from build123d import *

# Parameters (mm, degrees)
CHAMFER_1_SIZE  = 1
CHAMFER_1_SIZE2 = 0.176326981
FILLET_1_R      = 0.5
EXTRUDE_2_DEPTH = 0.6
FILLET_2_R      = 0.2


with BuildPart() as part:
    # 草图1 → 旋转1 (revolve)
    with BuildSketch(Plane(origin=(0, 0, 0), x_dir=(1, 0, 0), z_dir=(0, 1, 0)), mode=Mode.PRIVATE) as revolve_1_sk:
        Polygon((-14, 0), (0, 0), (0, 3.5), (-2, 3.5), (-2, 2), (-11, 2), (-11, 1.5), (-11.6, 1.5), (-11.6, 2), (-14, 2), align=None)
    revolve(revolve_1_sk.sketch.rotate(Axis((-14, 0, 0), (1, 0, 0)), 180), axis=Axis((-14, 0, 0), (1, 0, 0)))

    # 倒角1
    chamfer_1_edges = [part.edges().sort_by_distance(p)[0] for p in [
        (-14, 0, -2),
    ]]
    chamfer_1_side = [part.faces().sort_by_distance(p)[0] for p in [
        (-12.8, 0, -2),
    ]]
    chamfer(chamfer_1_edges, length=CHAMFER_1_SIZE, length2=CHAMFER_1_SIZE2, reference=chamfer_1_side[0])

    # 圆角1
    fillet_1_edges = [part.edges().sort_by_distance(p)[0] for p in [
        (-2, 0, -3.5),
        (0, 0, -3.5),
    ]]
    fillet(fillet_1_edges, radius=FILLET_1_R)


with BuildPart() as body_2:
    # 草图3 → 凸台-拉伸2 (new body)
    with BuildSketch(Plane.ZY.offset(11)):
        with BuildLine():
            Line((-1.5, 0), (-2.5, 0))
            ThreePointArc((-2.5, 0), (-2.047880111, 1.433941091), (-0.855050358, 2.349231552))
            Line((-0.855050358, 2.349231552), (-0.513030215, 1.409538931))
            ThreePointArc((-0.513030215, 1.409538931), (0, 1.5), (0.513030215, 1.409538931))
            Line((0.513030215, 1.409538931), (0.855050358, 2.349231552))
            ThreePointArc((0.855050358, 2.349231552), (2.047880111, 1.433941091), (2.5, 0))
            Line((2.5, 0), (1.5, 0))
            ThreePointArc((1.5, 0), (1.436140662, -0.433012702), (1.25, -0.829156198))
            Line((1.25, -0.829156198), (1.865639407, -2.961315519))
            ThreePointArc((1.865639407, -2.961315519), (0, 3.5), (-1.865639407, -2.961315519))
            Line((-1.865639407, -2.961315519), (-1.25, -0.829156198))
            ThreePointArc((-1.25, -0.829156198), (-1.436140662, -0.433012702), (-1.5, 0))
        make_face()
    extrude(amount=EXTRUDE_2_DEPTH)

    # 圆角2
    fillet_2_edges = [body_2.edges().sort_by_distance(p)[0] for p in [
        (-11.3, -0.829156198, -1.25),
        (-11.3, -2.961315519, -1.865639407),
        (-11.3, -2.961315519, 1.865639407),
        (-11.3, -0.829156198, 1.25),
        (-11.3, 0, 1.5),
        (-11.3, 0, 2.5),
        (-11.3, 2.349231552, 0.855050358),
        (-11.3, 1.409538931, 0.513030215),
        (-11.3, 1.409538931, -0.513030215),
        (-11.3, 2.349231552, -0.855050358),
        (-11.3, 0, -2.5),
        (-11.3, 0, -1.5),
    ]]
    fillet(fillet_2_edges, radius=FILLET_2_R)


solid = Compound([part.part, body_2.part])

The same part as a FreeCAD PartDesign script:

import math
import FreeCAD as App
import Part
import Sketcher
Q = App.Units.Quantity


def edges_at(feature, points):
    """Names of the edges that pass closest to the given points."""
    edges = feature.Shape.Edges
    near = lambda p: min(range(len(edges)), key=lambda i: edges[i].distToShape(Part.Vertex(*p))[0])
    return sorted({f"Edge{near(p) + 1}" for p in points})


def add_polygon(sketch, points):
    """Adds a closed chain of lines whose ends are joined by coincident constraints."""
    first, n = sketch.GeometryCount, len(points)
    for a, b in zip(points, points[1:] + points[:1]):
        sketch.addGeometry(Part.LineSegment(App.Vector(*a, 0), App.Vector(*b, 0)), False)
    for i in range(n):
        sketch.addConstraint(Sketcher.Constraint("Coincident", first + i, 2, first + (i + 1) % n, 1))

doc = App.newDocument("Part")
params = doc.addObject("Spreadsheet::Sheet", "Params")
for row, (alias, value) in enumerate([
    ("sketch1_width", "14 mm"),
    ("sketch1_width2", "2 mm"),
    ("sketch1_width3", "9 mm"),
    ("sketch1_width4", "0.6 mm"),
    ("sketch1_height", "3.5 mm"),
    ("revolution_angle", "360 deg"),
    ("chamfer_size", "1 mm"),
    ("chamfer_size2", "0.176327 mm"),
    ("fillet_radius", "0.5 mm"),
    ("sketch2_radius", "2.5 mm"),
    ("sketch2_radius2", "1.5 mm"),
    ("sketch2_radius3", "3.5 mm"),
    ("pad1_length", "0.6 mm"),
    ("fillet2_radius", "0.2 mm"),
], start=1):
    params.set(f"A{row}", alias)
    params.set(f"B{row}", "=" + value)
    params.setAlias(f"B{row}", alias)

body = doc.addObject("PartDesign::Body", "Body")

# Sketch on XZ plane
sketch1 = body.newObject("Sketcher::SketchObject", "Sketch")
sketch1.AttachmentSupport = (doc.getObject("XZ_Plane"), [""])
sketch1.MapMode = "FlatFace"
add_polygon(sketch1, [(-14, 0), (0, 0), (0, -3.5), (-2, -3.5), (-2, -2), (-11, -2), (-11, -1.5), (-11.6, -1.5), (-11.6, -2), (-14, -2)])  # lines 0-9
sketch1.addConstraint(Sketcher.Constraint("Horizontal", 0))
sketch1.addConstraint(Sketcher.Constraint("Vertical", 1))
sketch1.addConstraint(Sketcher.Constraint("Horizontal", 2))
sketch1.addConstraint(Sketcher.Constraint("Vertical", 3))
sketch1.addConstraint(Sketcher.Constraint("Horizontal", 4))
sketch1.addConstraint(Sketcher.Constraint("Vertical", 5))
sketch1.addConstraint(Sketcher.Constraint("Horizontal", 6))
sketch1.addConstraint(Sketcher.Constraint("Vertical", 7))
sketch1.addConstraint(Sketcher.Constraint("Horizontal", 8))
sketch1.addConstraint(Sketcher.Constraint("Vertical", 9))
sketch1.addConstraint(Sketcher.Constraint("Coincident", 0, 2, -1, 1))
sketch1.addConstraint(Sketcher.Constraint("Horizontal", 4, 2, 7, 2))
sketch1.addConstraint(Sketcher.Constraint("Equal", 2, 9))
sketch1.addConstraint(Sketcher.Constraint("DistanceX", 0, 1, 0, 2, 14.0))
sketch1.addConstraint(Sketcher.Constraint("DistanceX", 2, 2, 2, 1, 2.0))
sketch1.addConstraint(Sketcher.Constraint("DistanceX", 4, 2, 4, 1, 9.0))
sketch1.addConstraint(Sketcher.Constraint("DistanceX", 6, 2, 6, 1, 0.6))
sketch1.addConstraint(Sketcher.Constraint("DistanceY", 1, 2, 1, 1, 3.5))
sketch1.addConstraint(Sketcher.Constraint("DistanceY", 5, 1, 5, 2, 0.5))
sketch1.setExpression("Constraints[23]", "Params.sketch1_width")
sketch1.setExpression("Constraints[24]", "Params.sketch1_width2")
sketch1.setExpression("Constraints[25]", "Params.sketch1_width3")
sketch1.setExpression("Constraints[26]", "Params.sketch1_width4")
sketch1.setExpression("Constraints[27]", "Params.sketch1_height")
revolution = body.newObject("PartDesign::Revolution", "Revolution")
revolution.Profile = sketch1
revolution.ReferenceAxis = (sketch1, ["H_Axis"])
revolution.setExpression("Angle", "Params.revolution_angle")
doc.recompute()

chamfer = body.newObject("PartDesign::Chamfer", "Chamfer")
chamfer.Base = (revolution, edges_at(revolution, [(-14, 0, -2)]))
chamfer.ChamferType = "Two distances"
chamfer.setExpression("Size", "Params.chamfer_size")
chamfer.setExpression("Size2", "Params.chamfer_size2")
doc.recompute()

fillet = body.newObject("PartDesign::Fillet", "Fillet")
fillet.Base = (chamfer, edges_at(chamfer, [(-2, 0, -3.5), (0, 0, -3.5)]))
fillet.setExpression("Radius", "Params.fillet_radius")
body2 = doc.addObject("PartDesign::Body", "Body001")

# Sketch on YZ plane
sketch2 = body2.newObject("Sketcher::SketchObject", "Sketch001")
sketch2.AttachmentSupport = (doc.getObject("YZ_Plane001"), [""])
sketch2.MapMode = "FlatFace"
sketch2.AttachmentOffset = App.Placement(App.Vector(0, 0, -11), App.Rotation())
sketch2.addGeometry(Part.LineSegment(App.Vector(0, -1.5, 0), App.Vector(0, -2.5, 0)), False)
sketch2.addGeometry(Part.ArcOfCircle(Part.Circle(App.Vector(0, 0, 0), App.Vector(0, 0, 1), 2.5), math.radians(-90), math.radians(-20)), False)
sketch2.addGeometry(Part.LineSegment(App.Vector(2.3, -0.9, 0), App.Vector(1.4, -0.5, 0)), False)
sketch2.addGeometry(Part.ArcOfCircle(Part.Circle(App.Vector(0, 0, 0), App.Vector(0, 0, 1), 1.5), math.radians(-20), math.radians(20)), False)
sketch2.addGeometry(Part.LineSegment(App.Vector(1.4, 0.5, 0), App.Vector(2.3, 0.9, 0)), False)
sketch2.addGeometry(Part.ArcOfCircle(Part.Circle(App.Vector(0, 0, 0), App.Vector(0, 0, 1), 2.5), math.radians(20), math.radians(90)), False)
sketch2.addGeometry(Part.LineSegment(App.Vector(0, 2.5, 0), App.Vector(0, 1.5, 0)), False)
sketch2.addGeometry(Part.ArcOfCircle(Part.Circle(App.Vector(0, 0, 0), App.Vector(0, 0, 1), 1.5), math.radians(90), math.radians(124)), False)
sketch2.addGeometry(Part.LineSegment(App.Vector(-0.8, 1.2, 0), App.Vector(-3, 1.9, 0)), False)
sketch2.addGeometry(Part.ArcOfCircle(Part.Circle(App.Vector(0, 0, 0), App.Vector(0, 0, 1), 3.5), math.radians(-148), math.radians(148)), False)
sketch2.addGeometry(Part.LineSegment(App.Vector(-3, -1.9, 0), App.Vector(-0.8, -1.2, 0)), False)
sketch2.addGeometry(Part.ArcOfCircle(Part.Circle(App.Vector(0, 0, 0), App.Vector(0, 0, 1), 1.5), math.radians(-124), math.radians(-90)), False)
sketch2.addConstraint(Sketcher.Constraint("Coincident", 0, 2, 1, 1))
sketch2.addConstraint(Sketcher.Constraint("Coincident", 1, 2, 2, 1))
sketch2.addConstraint(Sketcher.Constraint("Coincident", 2, 2, 3, 1))
sketch2.addConstraint(Sketcher.Constraint("Coincident", 3, 2, 4, 1))
sketch2.addConstraint(Sketcher.Constraint("Coincident", 4, 2, 5, 1))
sketch2.addConstraint(Sketcher.Constraint("Coincident", 5, 2, 6, 1))
sketch2.addConstraint(Sketcher.Constraint("Coincident", 6, 2, 7, 1))
sketch2.addConstraint(Sketcher.Constraint("Coincident", 7, 2, 8, 1))
sketch2.addConstraint(Sketcher.Constraint("Coincident", 8, 2, 9, 2))
sketch2.addConstraint(Sketcher.Constraint("Coincident", 9, 1, 10, 1))
sketch2.addConstraint(Sketcher.Constraint("Coincident", 10, 2, 11, 1))
sketch2.addConstraint(Sketcher.Constraint("Coincident", 11, 2, 0, 1))
sketch2.addConstraint(Sketcher.Constraint("Vertical", 0))
sketch2.addConstraint(Sketcher.Constraint("Vertical", 6))
sketch2.addConstraint(Sketcher.Constraint("Coincident", 1, 3, -1, 1))
sketch2.addConstraint(Sketcher.Constraint("Coincident", 3, 3, -1, 1))
sketch2.addConstraint(Sketcher.Constraint("Coincident", 5, 3, -1, 1))
sketch2.addConstraint(Sketcher.Constraint("Coincident", 7, 3, -1, 1))
sketch2.addConstraint(Sketcher.Constraint("Coincident", 9, 3, -1, 1))
sketch2.addConstraint(Sketcher.Constraint("Coincident", 11, 3, -1, 1))
sketch2.addConstraint(Sketcher.Constraint("Equal", 1, 5))
sketch2.addConstraint(Sketcher.Constraint("Equal", 3, 7))
sketch2.addConstraint(Sketcher.Constraint("Equal", 7, 11))
sketch2.addConstraint(Sketcher.Constraint("PointOnObject", 0, 2, -2))
sketch2.addConstraint(Sketcher.Constraint("PointOnObject", 5, 2, -2))
sketch2.addConstraint(Sketcher.Constraint("Vertical", 2, 2, 3, 2))
sketch2.addConstraint(Sketcher.Constraint("Vertical", 1, 2, 4, 2))
sketch2.addConstraint(Sketcher.Constraint("Vertical", 8, 2, 9, 1))
sketch2.addConstraint(Sketcher.Constraint("Vertical", 7, 2, 10, 2))
sketch2.addConstraint(Sketcher.Constraint("Radius", 1, 2.5))
sketch2.addConstraint(Sketcher.Constraint("Radius", 3, 1.5))
sketch2.addConstraint(Sketcher.Constraint("Radius", 9, 3.5))
sketch2.addConstraint(Sketcher.Constraint("Angle", 2, Q("160 deg")))
sketch2.addConstraint(Sketcher.Constraint("DistanceY", -1, 1, 7, 2, 1.25))
sketch2.addConstraint(Sketcher.Constraint("DistanceY", 1, 2, 4, 2, 1.710101))
sketch2.addConstraint(Sketcher.Constraint("Distance", 8, 2.21926))
sketch2.setExpression("Constraints[29]", "Params.sketch2_radius")
sketch2.setExpression("Constraints[30]", "Params.sketch2_radius2")
sketch2.setExpression("Constraints[31]", "Params.sketch2_radius3")
pad1 = body2.newObject("PartDesign::Pad", "Pad")
pad1.Profile = sketch2
pad1.setExpression("Length", "Params.pad1_length")
pad1.Reversed = True
doc.recompute()

fillet2 = body2.newObject("PartDesign::Fillet", "Fillet001")
fillet2.Base = (pad1, edges_at(pad1, [
    (-11.3, -0.829, -1.25),
    (-11.3, -2.961, -1.866),
    (-11.3, -2.961, 1.866),
    (-11.3, -0.829, 1.25),
    (-11.3, 0, 1.5),
    (-11.3, 0, 2.5),
    (-11.3, 2.349, 0.855),
    (-11.3, 1.41, 0.513),
    (-11.3, 1.41, -0.513),
    (-11.3, 2.349, -0.855),
    (-11.3, 0, -2.5),
    (-11.3, 0, -1.5),
]))
fillet2.setExpression("Radius", "Params.fillet2_radius")

doc.recompute()
